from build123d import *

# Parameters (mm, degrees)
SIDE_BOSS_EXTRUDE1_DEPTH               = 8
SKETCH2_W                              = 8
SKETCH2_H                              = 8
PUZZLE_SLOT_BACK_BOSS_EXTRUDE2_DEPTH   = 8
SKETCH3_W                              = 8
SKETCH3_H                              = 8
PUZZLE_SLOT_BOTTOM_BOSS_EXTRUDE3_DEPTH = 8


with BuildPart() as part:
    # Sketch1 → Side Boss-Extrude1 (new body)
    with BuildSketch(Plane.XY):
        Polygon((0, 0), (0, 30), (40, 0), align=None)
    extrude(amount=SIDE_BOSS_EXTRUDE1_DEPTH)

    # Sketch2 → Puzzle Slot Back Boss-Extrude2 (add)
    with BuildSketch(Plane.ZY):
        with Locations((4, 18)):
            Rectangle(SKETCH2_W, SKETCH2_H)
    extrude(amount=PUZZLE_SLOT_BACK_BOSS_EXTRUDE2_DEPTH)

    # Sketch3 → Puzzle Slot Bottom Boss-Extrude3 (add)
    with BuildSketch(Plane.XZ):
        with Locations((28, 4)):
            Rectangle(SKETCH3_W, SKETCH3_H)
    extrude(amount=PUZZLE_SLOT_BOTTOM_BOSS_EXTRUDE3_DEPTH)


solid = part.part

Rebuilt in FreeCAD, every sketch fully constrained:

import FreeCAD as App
import Part
import Sketcher
from FreeCAD import Vector
Q = App.Units.Quantity

doc = App.newDocument("Part")
body = doc.addObject("PartDesign::Body", "Body")

# Sketch on XY plane
sketch1 = body.newObject("Sketcher::SketchObject", "Sketch")
sketch1.AttachmentSupport = (doc.getObject("XY_Plane"), [""])
sketch1.MapMode = "FlatFace"
sketch1.addGeometry([
    Part.LineSegment(Vector(0, 30, 0), Vector(0, 0, 0)),
    Part.LineSegment(Vector(0, 0, 0), Vector(40, 0, 0)),
    Part.LineSegment(Vector(40, 0, 0), Vector(0, 30, 0)),
], False)
sketch1.addConstraint([
    Sketcher.Constraint("Coincident", 0, 2, 1, 1),
    Sketcher.Constraint("Coincident", 1, 2, 2, 1),
    Sketcher.Constraint("Coincident", 2, 2, 0, 1),
    Sketcher.Constraint("Vertical", 0),
    Sketcher.Constraint("Horizontal", 1),
    Sketcher.Constraint("Coincident", 0, 2, -1, 1),
    Sketcher.Constraint("DistanceX", 1, 1, 1, 2, Q("40 mm")),
    Sketcher.Constraint("DistanceY", 0, 2, 0, 1, Q("30 mm")),
])
pad1 = body.newObject("PartDesign::Pad", "Pad")
pad1.Profile = sketch1
pad1.Length = 8

# Sketch on YZ plane
sketch2 = body.newObject("Sketcher::SketchObject", "Sketch001")
sketch2.AttachmentSupport = (doc.getObject("YZ_Plane"), [""])
sketch2.MapMode = "FlatFace"
sketch2.addGeometry([
    Part.LineSegment(Vector(22, 0, 0), Vector(14, 0, 0)),
    Part.LineSegment(Vector(14, 0, 0), Vector(14, 8, 0)),
    Part.LineSegment(Vector(14, 8, 0), Vector(22, 8, 0)),
    Part.LineSegment(Vector(22, 8, 0), Vector(22, 0, 0)),
], False)
sketch2.addConstraint([
    Sketcher.Constraint("Coincident", 0, 2, 1, 1),
    Sketcher.Constraint("Coincident", 1, 2, 2, 1),
    Sketcher.Constraint("Coincident", 2, 2, 3, 1),
    Sketcher.Constraint("Coincident", 3, 2, 0, 1),
    Sketcher.Constraint("Horizontal", 0),
    Sketcher.Constraint("Vertical", 1),
    Sketcher.Constraint("Horizontal", 2),
    Sketcher.Constraint("Vertical", 3),
    Sketcher.Constraint("PointOnObject", 0, 2, -1),
    Sketcher.Constraint("Equal", 2, 1),
    Sketcher.Constraint("DistanceX", 0, 2, 0, 1, Q("8 mm")),
    Sketcher.Constraint("DistanceX", -1, 1, 0, 2, Q("14 mm")),
])
pad2 = body.newObject("PartDesign::Pad", "Pad001")
pad2.Profile = sketch2
pad2.Length = 8
pad2.Reversed = True

# Sketch on XZ plane
sketch3 = body.newObject("Sketcher::SketchObject", "Sketch002")
sketch3.AttachmentSupport = (doc.getObject("XZ_Plane"), [""])
sketch3.MapMode = "FlatFace"
sketch3.addGeometry([
    Part.LineSegment(Vector(24, 8, 0), Vector(24, 0, 0)),
    Part.LineSegment(Vector(24, 0, 0), Vector(32, 0, 0)),
    Part.LineSegment(Vector(32, 0, 0), Vector(32, 8, 0)),
    Part.LineSegment(Vector(32, 8, 0), Vector(24, 8, 0)),
], False)
sketch3.addConstraint([
    Sketcher.Constraint("Coincident", 0, 2, 1, 1),
    Sketcher.Constraint("Coincident", 1, 2, 2, 1),
    Sketcher.Constraint("Coincident", 2, 2, 3, 1),
    Sketcher.Constraint("Coincident", 3, 2, 0, 1),
    Sketcher.Constraint("Vertical", 0),
    Sketcher.Constraint("Horizontal", 1),
    Sketcher.Constraint("Vertical", 2),
    Sketcher.Constraint("Horizontal", 3),
    Sketcher.Constraint("PointOnObject", 0, 2, -1),
    Sketcher.Constraint("Equal", 3, 0),
    Sketcher.Constraint("DistanceX", 1, 1, 1, 2, Q("8 mm")),
    Sketcher.Constraint("DistanceX", -1, 1, 0, 2, Q("24 mm")),
])
pad3 = body.newObject("PartDesign::Pad", "Pad002")
pad3.Profile = sketch3
pad3.Length = 8

doc.recompute()
